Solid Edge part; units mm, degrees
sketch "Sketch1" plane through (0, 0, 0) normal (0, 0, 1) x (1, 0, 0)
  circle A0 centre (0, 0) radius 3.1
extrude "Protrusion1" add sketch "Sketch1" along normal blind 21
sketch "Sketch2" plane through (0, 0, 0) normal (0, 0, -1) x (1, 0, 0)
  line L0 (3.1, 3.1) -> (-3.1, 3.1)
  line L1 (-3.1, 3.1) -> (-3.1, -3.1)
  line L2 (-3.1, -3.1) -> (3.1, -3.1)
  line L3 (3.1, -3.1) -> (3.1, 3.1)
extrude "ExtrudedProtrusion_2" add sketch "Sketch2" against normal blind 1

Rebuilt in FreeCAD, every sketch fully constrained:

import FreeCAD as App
import Part
import Sketcher


def add_polygon(sketch, points):
    """Adds a closed chain of lines whose ends are joined by coincident constraints."""
    first, n = sketch.GeometryCount, len(points)
    for a, b in zip(points, points[1:] + points[:1]):
        sketch.addGeometry(Part.LineSegment(App.Vector(*a, 0), App.Vector(*b, 0)), False)
    for i in range(n):
        sketch.addConstraint(Sketcher.Constraint("Coincident", first + i, 2, first + (i + 1) % n, 1))

doc = App.newDocument("Part")
params = doc.addObject("Spreadsheet::Sheet", "Params")
for row, (alias, value) in enumerate([
    ("sketch1_diameter", "6.2 mm"),
    ("pad1_length", "21 mm"),
    ("sketch2_width", "6.2 mm"),
    ("pad2_length", "1 mm"),
], start=1):
    params.set(f"A{row}", alias)
    params.set(f"B{row}", "=" + value)
    params.setAlias(f"B{row}", alias)

body = doc.addObject("PartDesign::Body", "Body")

# Sketch on XY plane
sketch1 = body.newObject("Sketcher::SketchObject", "Sketch")
sketch1.AttachmentSupport = (doc.getObject("XY_Plane"), [""])
sketch1.MapMode = "FlatFace"
sketch1.addGeometry(Part.Circle(App.Vector(0, 0, 0), App.Vector(0, 0, 1), 3.1), False)
sketch1.addConstraint(Sketcher.Constraint("Coincident", 0, 3, -1, 1))
sketch1.addConstraint(Sketcher.Constraint("Diameter", 0, 6.2))
sketch1.setExpression("Constraints[1]", "Params.sketch1_diameter")
pad1 = body.newObject("PartDesign::Pad", "Pad")
pad1.Profile = sketch1
pad1.setExpression("Length", "Params.pad1_length")

# Sketch on XY plane
sketch2 = body.newObject("Sketcher::SketchObject", "Sketch001")
sketch2.AttachmentSupport = (doc.getObject("XY_Plane"), [""])
sketch2.MapMode = "FlatFace"
add_polygon(sketch2, [(3, 3), (3, -3), (-3, -3), (-3, 3)])  # lines 0-3
sketch2.addConstraint(Sketcher.Constraint("Vertical", 0))
sketch2.addConstraint(Sketcher.Constraint("Horizontal", 1))
sketch2.addConstraint(Sketcher.Constraint("Vertical", 2))
sketch2.addConstraint(Sketcher.Constraint("Horizontal", 3))
sketch2.addConstraint(Sketcher.Constraint("Symmetric", 0, 2, 2, 2, -1, 1))
sketch2.addConstraint(Sketcher.Constraint("Equal", 3, 0))
sketch2.addConstraint(Sketcher.Constraint("DistanceX", 1, 2, 1, 1, 6.2))
sketch2.setExpression("Constraints[10]", "Params.sketch2_width")
pad2 = body.newObject("PartDesign::Pad", "Pad001")
pad2.Profile = sketch2
pad2.setExpression("Length", "Params.pad2_length")

doc.recompute()
